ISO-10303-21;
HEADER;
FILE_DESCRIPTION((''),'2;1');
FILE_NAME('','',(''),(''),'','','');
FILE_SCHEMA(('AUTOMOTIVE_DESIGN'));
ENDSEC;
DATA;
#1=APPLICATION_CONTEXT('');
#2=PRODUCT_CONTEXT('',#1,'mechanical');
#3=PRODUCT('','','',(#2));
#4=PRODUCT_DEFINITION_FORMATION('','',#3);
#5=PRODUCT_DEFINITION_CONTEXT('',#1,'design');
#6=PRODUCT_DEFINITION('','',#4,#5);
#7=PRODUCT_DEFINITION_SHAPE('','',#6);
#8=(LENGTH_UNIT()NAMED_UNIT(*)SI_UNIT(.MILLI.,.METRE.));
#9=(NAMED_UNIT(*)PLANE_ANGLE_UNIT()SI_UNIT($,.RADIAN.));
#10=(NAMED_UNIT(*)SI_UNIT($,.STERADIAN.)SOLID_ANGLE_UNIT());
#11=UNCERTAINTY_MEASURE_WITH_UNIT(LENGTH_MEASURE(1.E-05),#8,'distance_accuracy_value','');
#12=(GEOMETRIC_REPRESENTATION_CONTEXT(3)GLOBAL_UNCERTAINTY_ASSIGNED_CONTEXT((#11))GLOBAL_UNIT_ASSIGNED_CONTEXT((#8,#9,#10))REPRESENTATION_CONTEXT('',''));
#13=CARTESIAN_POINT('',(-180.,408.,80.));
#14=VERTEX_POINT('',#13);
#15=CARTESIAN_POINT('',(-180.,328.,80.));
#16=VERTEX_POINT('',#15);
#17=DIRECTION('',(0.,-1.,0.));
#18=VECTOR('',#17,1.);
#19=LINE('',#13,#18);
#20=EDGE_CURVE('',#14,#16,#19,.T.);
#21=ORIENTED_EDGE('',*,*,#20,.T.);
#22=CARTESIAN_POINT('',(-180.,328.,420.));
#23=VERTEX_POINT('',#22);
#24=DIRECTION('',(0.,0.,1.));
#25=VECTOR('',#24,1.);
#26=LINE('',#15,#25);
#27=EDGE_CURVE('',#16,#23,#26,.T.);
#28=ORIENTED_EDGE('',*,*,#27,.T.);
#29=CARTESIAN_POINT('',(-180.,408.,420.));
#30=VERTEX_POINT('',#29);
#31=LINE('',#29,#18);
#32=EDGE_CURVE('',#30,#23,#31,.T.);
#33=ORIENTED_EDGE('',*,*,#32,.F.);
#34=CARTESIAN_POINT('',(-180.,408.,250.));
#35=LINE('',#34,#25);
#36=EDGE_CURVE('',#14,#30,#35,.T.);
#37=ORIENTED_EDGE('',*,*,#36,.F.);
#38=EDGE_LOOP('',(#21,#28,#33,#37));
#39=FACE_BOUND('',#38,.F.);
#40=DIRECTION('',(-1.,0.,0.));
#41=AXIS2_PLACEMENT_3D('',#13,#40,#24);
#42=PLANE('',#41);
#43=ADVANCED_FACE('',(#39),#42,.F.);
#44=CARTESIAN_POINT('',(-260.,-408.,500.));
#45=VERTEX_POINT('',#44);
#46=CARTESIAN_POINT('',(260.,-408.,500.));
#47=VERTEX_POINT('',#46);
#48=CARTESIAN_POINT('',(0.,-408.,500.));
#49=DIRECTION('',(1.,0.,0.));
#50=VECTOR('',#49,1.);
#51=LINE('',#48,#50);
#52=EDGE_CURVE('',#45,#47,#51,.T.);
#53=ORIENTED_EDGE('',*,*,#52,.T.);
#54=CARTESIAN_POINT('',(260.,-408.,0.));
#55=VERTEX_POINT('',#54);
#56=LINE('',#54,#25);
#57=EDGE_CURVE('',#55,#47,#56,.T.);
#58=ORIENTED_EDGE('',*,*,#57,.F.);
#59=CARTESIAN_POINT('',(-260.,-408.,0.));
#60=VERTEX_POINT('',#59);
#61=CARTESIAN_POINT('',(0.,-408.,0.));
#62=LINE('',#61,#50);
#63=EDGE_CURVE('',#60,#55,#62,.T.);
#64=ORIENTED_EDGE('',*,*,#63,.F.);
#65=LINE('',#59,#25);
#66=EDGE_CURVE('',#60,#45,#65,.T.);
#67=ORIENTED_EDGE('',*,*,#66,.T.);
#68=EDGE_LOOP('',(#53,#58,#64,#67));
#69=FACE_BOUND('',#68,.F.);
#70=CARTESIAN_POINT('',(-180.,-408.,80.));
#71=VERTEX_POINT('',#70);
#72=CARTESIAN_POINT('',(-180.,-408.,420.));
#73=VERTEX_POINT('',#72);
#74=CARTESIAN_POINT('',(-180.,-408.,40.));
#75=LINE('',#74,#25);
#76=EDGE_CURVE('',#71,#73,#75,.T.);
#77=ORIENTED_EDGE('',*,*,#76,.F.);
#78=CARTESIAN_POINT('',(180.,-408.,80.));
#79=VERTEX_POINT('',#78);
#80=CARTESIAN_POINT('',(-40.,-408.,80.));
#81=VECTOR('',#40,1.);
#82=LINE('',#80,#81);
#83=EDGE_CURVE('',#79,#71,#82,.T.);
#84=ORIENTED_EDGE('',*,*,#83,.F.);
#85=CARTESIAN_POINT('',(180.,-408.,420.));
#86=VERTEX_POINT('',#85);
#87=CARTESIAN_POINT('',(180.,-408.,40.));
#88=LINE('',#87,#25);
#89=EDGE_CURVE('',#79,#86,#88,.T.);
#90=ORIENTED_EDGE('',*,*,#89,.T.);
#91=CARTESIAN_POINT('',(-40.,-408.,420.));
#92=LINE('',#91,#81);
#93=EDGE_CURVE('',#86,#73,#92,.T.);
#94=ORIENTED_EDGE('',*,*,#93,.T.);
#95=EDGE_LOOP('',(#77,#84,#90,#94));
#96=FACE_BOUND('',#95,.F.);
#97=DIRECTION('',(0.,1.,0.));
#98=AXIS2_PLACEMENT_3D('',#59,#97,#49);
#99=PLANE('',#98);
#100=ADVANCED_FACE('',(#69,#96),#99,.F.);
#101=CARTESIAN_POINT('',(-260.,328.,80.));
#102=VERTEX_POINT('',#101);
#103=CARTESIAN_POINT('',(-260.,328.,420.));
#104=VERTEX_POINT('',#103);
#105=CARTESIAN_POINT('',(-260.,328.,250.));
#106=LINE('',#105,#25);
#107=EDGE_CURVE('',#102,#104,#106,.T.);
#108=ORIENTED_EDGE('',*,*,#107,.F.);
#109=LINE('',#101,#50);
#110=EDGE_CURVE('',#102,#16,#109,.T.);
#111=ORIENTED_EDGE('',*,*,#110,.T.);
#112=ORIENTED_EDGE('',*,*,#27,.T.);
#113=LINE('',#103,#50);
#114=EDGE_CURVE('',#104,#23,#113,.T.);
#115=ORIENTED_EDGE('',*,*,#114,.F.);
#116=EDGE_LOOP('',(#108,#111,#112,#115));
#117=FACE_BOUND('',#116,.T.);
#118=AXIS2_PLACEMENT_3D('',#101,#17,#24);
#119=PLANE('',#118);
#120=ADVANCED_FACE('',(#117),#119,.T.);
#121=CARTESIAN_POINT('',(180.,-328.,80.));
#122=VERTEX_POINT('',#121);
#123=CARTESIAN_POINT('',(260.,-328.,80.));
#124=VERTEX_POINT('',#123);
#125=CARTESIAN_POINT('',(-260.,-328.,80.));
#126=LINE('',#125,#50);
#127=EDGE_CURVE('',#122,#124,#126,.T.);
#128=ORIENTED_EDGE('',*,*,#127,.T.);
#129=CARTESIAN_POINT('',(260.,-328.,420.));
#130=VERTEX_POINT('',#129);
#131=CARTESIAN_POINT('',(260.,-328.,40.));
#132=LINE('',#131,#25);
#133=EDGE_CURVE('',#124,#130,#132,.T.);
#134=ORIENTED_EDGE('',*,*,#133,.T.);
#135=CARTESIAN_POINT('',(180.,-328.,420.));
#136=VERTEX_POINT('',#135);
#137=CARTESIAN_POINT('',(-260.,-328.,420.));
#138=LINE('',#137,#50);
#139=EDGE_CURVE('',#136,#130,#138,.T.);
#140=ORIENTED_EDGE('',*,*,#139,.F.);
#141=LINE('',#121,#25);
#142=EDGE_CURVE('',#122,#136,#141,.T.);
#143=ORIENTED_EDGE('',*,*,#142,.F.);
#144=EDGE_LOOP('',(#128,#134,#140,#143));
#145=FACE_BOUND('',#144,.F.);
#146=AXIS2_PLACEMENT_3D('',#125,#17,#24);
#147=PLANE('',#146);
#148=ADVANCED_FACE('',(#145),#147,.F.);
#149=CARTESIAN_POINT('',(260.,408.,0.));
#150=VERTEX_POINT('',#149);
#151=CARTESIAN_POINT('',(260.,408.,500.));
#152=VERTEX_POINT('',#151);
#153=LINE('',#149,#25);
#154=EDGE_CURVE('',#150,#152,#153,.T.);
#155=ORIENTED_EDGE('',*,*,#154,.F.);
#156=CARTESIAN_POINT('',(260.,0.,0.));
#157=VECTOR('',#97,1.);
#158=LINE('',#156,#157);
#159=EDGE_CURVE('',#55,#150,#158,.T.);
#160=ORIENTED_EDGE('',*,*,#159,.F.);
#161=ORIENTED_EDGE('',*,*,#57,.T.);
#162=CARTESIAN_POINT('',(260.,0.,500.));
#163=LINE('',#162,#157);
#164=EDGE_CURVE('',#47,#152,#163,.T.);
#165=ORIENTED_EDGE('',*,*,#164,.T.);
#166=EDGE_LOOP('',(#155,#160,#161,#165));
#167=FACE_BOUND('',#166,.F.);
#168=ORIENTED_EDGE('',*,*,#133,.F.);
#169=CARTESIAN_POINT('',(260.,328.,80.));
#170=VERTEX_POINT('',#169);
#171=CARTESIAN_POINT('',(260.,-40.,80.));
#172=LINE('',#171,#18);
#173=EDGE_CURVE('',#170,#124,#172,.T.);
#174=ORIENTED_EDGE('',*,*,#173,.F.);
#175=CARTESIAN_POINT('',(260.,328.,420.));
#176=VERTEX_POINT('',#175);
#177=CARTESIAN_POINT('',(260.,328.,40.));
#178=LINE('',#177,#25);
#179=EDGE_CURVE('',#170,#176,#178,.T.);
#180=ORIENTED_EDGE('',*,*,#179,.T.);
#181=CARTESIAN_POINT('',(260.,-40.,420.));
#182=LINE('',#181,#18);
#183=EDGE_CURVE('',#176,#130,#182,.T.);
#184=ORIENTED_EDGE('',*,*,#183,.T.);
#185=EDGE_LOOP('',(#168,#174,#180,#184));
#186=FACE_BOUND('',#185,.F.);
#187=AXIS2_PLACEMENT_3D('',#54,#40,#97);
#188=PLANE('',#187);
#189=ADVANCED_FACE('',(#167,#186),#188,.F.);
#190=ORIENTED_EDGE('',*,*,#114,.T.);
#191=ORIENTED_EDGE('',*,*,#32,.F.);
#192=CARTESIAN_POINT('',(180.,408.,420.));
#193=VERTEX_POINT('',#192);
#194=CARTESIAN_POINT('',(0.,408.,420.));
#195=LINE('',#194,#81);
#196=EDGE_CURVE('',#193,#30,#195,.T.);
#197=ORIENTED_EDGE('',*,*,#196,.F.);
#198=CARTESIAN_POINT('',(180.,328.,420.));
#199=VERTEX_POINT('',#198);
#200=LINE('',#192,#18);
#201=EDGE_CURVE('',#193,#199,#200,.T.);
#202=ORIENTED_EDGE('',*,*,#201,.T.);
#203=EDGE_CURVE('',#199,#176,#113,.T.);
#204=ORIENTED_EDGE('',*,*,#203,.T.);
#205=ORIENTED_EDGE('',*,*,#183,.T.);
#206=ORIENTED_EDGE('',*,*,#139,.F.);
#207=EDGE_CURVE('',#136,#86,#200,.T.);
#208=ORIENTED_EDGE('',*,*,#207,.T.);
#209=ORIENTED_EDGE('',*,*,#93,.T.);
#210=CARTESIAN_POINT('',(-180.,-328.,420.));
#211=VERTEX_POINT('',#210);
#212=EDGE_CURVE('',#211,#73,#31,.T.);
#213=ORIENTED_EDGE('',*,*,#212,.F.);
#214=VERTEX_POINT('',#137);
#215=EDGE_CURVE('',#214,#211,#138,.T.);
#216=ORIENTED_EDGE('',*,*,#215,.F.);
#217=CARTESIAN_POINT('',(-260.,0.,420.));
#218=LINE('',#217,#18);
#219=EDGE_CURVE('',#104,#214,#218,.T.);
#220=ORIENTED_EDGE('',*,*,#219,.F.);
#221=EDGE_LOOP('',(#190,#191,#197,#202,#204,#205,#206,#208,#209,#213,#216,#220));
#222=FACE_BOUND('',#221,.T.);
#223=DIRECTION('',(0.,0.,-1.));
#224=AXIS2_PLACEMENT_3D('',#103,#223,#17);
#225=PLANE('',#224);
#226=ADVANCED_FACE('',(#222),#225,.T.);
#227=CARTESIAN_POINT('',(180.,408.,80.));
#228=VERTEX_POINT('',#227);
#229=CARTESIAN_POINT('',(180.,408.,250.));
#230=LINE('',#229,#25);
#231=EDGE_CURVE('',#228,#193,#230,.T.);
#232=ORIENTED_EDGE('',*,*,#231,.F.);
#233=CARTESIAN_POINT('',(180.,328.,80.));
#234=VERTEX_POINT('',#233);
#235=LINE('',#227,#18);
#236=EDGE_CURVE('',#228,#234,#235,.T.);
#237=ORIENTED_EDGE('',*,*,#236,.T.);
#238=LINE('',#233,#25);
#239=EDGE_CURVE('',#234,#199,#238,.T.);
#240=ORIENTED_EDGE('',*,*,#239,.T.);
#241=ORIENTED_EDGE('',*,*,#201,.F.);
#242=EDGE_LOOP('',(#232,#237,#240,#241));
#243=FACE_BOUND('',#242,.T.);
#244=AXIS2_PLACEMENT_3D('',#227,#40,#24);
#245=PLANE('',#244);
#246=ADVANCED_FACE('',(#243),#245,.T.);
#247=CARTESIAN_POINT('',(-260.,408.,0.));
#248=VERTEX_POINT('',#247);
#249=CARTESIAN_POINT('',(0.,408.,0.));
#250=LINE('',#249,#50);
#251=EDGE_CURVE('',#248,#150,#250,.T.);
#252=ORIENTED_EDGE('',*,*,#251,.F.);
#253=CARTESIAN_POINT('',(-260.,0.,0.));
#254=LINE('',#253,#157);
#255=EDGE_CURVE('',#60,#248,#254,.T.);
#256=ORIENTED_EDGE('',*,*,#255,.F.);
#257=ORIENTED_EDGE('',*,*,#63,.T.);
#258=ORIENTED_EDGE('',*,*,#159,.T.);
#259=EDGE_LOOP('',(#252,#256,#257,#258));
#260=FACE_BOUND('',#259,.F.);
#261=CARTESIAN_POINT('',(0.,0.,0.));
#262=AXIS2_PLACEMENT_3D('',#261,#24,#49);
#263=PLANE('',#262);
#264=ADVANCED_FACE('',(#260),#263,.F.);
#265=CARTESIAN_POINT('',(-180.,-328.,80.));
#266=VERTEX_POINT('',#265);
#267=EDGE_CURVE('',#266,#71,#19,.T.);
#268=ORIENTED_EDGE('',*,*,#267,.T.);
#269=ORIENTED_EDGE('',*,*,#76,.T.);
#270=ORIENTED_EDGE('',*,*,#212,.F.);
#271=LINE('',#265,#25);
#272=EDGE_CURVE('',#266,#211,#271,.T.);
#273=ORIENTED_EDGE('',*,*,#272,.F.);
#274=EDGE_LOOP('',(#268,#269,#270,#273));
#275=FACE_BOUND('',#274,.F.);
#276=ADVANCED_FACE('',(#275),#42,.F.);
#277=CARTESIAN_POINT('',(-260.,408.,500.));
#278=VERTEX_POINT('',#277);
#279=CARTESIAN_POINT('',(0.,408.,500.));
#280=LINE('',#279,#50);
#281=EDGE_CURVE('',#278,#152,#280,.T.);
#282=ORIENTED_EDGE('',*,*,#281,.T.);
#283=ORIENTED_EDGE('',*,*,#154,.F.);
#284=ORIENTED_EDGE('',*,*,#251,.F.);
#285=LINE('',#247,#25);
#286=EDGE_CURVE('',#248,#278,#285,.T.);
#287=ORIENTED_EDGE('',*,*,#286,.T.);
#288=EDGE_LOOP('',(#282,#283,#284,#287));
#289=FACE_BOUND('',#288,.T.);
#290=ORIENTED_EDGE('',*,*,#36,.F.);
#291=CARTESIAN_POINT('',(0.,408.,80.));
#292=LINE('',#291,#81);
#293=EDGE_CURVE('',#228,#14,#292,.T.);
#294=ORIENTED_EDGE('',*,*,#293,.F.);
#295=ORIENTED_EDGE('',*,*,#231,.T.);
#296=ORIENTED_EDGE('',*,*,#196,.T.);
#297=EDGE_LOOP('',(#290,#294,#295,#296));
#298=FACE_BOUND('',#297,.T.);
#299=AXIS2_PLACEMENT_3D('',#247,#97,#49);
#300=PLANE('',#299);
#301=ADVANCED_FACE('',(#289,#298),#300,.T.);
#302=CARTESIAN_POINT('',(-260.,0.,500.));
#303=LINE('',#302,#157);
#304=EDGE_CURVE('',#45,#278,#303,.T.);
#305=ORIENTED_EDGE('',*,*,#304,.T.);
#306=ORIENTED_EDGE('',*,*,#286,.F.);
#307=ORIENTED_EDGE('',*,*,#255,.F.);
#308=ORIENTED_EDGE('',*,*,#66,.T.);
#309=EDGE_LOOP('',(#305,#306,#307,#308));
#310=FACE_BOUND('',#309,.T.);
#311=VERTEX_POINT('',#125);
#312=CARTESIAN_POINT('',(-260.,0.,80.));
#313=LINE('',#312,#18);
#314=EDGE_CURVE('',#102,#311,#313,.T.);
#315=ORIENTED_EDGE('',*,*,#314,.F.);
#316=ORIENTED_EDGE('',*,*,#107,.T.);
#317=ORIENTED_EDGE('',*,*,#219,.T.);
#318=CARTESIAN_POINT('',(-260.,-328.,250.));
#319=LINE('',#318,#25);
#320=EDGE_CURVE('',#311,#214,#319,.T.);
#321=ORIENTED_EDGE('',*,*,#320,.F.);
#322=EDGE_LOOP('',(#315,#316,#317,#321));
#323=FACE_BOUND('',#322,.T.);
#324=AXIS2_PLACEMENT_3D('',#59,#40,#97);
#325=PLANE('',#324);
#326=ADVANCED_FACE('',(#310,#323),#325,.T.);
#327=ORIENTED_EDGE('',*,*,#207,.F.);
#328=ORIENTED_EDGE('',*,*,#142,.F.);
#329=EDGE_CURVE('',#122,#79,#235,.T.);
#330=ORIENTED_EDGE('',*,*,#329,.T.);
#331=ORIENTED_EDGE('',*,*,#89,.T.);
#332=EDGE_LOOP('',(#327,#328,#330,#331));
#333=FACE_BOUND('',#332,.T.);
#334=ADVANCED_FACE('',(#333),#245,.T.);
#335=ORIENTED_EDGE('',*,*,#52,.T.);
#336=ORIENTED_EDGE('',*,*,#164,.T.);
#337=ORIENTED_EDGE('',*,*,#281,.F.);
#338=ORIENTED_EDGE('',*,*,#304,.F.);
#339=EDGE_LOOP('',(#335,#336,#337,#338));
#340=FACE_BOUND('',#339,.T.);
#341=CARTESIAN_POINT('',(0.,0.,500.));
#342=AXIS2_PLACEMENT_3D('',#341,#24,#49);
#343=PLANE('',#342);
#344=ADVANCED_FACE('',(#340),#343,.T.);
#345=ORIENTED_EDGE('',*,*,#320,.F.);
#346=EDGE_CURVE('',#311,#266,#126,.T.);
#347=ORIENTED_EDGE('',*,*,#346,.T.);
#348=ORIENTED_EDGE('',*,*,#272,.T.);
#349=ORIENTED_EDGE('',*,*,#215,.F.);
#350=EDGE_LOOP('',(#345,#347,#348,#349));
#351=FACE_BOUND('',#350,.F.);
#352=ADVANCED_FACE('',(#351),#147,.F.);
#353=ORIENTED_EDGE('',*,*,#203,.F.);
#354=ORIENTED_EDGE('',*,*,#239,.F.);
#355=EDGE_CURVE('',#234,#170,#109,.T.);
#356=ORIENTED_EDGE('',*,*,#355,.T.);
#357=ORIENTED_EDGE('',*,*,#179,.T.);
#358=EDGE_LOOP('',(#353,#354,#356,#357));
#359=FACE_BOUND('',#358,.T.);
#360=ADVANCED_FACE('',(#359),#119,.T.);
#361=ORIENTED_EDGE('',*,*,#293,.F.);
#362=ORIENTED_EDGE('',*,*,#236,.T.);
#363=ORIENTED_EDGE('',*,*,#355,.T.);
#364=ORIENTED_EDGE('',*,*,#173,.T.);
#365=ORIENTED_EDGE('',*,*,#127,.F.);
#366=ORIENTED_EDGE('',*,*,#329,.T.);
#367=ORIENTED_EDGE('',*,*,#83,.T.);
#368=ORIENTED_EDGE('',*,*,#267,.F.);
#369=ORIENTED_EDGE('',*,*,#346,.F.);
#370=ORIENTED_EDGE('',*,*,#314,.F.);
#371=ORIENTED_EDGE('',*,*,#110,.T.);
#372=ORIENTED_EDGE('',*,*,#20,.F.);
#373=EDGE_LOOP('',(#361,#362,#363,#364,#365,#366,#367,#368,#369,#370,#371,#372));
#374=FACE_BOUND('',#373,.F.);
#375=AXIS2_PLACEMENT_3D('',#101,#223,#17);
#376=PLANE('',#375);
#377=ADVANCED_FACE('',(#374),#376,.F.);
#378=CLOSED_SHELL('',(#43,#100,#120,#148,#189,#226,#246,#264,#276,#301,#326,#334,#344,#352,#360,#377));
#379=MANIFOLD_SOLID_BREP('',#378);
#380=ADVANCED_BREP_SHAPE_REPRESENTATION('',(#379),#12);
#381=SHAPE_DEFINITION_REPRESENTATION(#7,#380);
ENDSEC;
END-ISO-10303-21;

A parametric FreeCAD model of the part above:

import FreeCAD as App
import Part
import Sketcher

V = App.Vector


def add_polygon(sketch, points):
    """Adds a closed chain of lines whose ends are joined by coincident constraints."""
    first, n = sketch.GeometryCount, len(points)
    for a, b in zip(points, points[1:] + points[:1]):
        sketch.addGeometry(Part.LineSegment(App.Vector(*a, 0), App.Vector(*b, 0)), False)
    for i in range(n):
        sketch.addConstraint(Sketcher.Constraint("Coincident", first + i, 2, first + (i + 1) % n, 1))

doc = App.newDocument("Part")
body = doc.addObject("PartDesign::Body", "Body")

sketch1 = body.newObject("Sketcher::SketchObject", "Sketch")
sketch1.AttachmentSupport = (doc.getObject("XY_Plane"), [""])
sketch1.MapMode = "FlatFace"
add_polygon(sketch1, [(-260, 408), (-260, -408), (260, -408), (260, 408)])
sketch1.addConstraint(Sketcher.Constraint("Vertical", 0))
sketch1.addConstraint(Sketcher.Constraint("Horizontal", 1))
sketch1.addConstraint(Sketcher.Constraint("Vertical", 2))
sketch1.addConstraint(Sketcher.Constraint("Horizontal", 3))
sketch1.addConstraint(Sketcher.Constraint("Symmetric", 0, 2, 2, 2, -1, 1))
sketch1.addConstraint(Sketcher.Constraint("DistanceX", 1, 1, 1, 2, 520.0))
sketch1.addConstraint(Sketcher.Constraint("DistanceY", 0, 2, 0, 1, 816.0))
pad1 = body.newObject("PartDesign::Pad", "Pad")
pad1.Profile = sketch1
pad1.Length = 500

sketch2 = body.newObject("Sketcher::SketchObject", "Sketch001")
sketch2.AttachmentSupport = (doc.getObject("XZ_Plane"), [""])
sketch2.MapMode = "FlatFace"
sketch2.AttachmentOffset = App.Placement(V(0, 0, -408), App.Rotation())
add_polygon(sketch2, [(180, 420), (180, 80), (-180, 80), (-180, 420)])
sketch2.addConstraint(Sketcher.Constraint("Vertical", 0))
sketch2.addConstraint(Sketcher.Constraint("Horizontal", 1))
sketch2.addConstraint(Sketcher.Constraint("Vertical", 2))
sketch2.addConstraint(Sketcher.Constraint("Horizontal", 3))
sketch2.addConstraint(Sketcher.Constraint("DistanceX", 1, 2, 1, 1, 360.0))
sketch2.addConstraint(Sketcher.Constraint("DistanceY", 0, 2, 0, 1, 340.0))
sketch2.addConstraint(Sketcher.Constraint("DistanceX", -1, 1, 0, 2, 180.0))
sketch2.addConstraint(Sketcher.Constraint("DistanceY", -1, 1, 0, 2, 80.0))
pocket1 = body.newObject("PartDesign::Pocket", "Pocket")
pocket1.Profile = sketch2
pocket1.Type = "ThroughAll"
pocket1.Reversed = True

sketch3 = body.newObject("Sketcher::SketchObject", "Sketch002")
sketch3.AttachmentSupport = (doc.getObject("YZ_Plane"), [""])
sketch3.MapMode = "FlatFace"
sketch3.AttachmentOffset = App.Placement(V(0, 0, -260), App.Rotation())
add_polygon(sketch3, [(328, 420), (328, 80), (-328, 80), (-328, 420)])
sketch3.addConstraint(Sketcher.Constraint("Vertical", 0))
sketch3.addConstraint(Sketcher.Constraint("Horizontal", 1))
sketch3.addConstraint(Sketcher.Constraint("Vertical", 2))
sketch3.addConstraint(Sketcher.Constraint("Horizontal", 3))
sketch3.addConstraint(Sketcher.Constraint("DistanceX", 1, 2, 1, 1, 656.0))
sketch3.addConstraint(Sketcher.Constraint("DistanceY", 0, 2, 0, 1, 340.0))
sketch3.addConstraint(Sketcher.Constraint("DistanceX", -1, 1, 0, 2, 328.0))
sketch3.addConstraint(Sketcher.Constraint("DistanceY", -1, 1, 0, 2, 80.0))
pocket2 = body.newObject("PartDesign::Pocket", "Pocket001")
pocket2.Profile = sketch3
pocket2.Type = "ThroughAll"
pocket2.Reversed = True

doc.recompute()
